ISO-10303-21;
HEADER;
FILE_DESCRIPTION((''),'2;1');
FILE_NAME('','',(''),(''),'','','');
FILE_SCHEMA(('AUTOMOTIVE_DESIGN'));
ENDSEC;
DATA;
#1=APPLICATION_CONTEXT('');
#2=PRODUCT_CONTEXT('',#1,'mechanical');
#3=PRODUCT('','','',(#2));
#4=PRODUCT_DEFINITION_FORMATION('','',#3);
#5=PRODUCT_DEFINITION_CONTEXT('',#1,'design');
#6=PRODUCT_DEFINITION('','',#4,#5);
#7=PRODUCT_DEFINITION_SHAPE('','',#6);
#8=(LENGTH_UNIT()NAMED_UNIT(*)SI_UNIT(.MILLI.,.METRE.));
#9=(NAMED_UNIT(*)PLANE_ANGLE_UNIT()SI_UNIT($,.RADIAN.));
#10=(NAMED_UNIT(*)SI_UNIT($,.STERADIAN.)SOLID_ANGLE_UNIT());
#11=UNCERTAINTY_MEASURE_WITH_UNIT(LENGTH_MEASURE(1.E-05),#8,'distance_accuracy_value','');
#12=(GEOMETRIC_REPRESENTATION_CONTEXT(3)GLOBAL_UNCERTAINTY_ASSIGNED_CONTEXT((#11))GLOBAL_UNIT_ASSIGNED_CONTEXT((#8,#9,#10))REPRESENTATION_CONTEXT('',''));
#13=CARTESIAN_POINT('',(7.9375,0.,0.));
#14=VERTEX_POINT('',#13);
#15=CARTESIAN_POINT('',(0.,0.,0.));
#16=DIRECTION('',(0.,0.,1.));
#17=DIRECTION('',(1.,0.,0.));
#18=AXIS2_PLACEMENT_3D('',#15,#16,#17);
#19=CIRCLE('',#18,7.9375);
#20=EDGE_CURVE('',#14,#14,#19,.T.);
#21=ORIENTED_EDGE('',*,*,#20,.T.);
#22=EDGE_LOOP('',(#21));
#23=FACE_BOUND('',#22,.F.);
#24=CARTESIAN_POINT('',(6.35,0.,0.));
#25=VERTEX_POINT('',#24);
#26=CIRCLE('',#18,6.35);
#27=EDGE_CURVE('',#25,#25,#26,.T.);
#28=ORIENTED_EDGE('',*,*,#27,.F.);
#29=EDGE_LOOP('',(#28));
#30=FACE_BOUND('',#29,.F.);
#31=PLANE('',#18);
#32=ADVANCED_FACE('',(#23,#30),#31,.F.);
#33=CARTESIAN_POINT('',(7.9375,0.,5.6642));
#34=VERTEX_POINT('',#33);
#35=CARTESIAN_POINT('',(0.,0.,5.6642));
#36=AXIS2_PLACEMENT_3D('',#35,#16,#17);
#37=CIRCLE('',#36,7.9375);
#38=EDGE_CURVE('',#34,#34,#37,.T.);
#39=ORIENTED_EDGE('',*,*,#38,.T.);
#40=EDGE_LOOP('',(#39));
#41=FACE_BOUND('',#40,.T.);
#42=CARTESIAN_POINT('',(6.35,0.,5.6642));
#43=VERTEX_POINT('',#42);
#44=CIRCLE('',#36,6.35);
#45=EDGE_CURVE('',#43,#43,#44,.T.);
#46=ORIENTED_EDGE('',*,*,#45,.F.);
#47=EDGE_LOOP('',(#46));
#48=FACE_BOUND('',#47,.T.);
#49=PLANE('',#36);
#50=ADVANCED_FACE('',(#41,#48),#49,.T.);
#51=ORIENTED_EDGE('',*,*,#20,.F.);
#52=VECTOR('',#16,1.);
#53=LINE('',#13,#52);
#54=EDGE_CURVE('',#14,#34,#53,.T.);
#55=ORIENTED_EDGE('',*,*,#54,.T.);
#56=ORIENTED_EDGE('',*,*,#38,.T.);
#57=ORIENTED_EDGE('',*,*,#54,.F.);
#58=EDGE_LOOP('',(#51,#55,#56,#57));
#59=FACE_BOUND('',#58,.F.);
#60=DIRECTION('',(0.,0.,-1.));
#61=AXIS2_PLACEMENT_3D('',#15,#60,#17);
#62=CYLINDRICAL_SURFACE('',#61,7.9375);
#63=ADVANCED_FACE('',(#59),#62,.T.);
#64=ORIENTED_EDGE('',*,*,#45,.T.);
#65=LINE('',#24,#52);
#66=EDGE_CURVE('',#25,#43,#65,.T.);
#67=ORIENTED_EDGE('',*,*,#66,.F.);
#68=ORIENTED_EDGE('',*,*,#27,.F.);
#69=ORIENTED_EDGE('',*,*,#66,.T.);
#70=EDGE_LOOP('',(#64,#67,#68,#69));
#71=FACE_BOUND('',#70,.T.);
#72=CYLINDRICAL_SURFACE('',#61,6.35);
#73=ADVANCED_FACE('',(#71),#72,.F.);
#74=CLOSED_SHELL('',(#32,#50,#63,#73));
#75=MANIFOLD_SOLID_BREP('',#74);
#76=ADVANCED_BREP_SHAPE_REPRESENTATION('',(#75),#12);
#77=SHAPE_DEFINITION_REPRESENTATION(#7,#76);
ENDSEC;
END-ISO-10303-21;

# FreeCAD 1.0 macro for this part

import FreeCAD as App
import Part
import Sketcher
Q = App.Units.Quantity

doc = App.newDocument("Part")
body = doc.addObject("PartDesign::Body", "Body")

sketch1 = body.newObject("Sketcher::SketchObject", "Sketch")
sketch1.AttachmentSupport = (doc.getObject("XY_Plane"), [""])
sketch1.MapMode = "FlatFace"
sketch1.addGeometry(Part.Circle(App.Vector(0, 0, 0), App.Vector(0, 0, 1), 7.9375), False)
sketch1.addGeometry(Part.Circle(App.Vector(0, 0, 0), App.Vector(0, 0, 1), 6.35), False)
sketch1.addConstraint(Sketcher.Constraint("Coincident", 0, 3, -1, 1))
sketch1.addConstraint(Sketcher.Constraint("Coincident", 1, 3, -1, 1))
sketch1.addConstraint(Sketcher.Constraint("Diameter", 1, Q("0.5 in")))
sketch1.addConstraint(Sketcher.Constraint("Diameter", 0, Q("0.625 in")))
pad1 = body.newObject("PartDesign::Pad", "Pad")
pad1.Profile = sketch1
pad1.Length = Q("0.223 in")

doc.recompute()
